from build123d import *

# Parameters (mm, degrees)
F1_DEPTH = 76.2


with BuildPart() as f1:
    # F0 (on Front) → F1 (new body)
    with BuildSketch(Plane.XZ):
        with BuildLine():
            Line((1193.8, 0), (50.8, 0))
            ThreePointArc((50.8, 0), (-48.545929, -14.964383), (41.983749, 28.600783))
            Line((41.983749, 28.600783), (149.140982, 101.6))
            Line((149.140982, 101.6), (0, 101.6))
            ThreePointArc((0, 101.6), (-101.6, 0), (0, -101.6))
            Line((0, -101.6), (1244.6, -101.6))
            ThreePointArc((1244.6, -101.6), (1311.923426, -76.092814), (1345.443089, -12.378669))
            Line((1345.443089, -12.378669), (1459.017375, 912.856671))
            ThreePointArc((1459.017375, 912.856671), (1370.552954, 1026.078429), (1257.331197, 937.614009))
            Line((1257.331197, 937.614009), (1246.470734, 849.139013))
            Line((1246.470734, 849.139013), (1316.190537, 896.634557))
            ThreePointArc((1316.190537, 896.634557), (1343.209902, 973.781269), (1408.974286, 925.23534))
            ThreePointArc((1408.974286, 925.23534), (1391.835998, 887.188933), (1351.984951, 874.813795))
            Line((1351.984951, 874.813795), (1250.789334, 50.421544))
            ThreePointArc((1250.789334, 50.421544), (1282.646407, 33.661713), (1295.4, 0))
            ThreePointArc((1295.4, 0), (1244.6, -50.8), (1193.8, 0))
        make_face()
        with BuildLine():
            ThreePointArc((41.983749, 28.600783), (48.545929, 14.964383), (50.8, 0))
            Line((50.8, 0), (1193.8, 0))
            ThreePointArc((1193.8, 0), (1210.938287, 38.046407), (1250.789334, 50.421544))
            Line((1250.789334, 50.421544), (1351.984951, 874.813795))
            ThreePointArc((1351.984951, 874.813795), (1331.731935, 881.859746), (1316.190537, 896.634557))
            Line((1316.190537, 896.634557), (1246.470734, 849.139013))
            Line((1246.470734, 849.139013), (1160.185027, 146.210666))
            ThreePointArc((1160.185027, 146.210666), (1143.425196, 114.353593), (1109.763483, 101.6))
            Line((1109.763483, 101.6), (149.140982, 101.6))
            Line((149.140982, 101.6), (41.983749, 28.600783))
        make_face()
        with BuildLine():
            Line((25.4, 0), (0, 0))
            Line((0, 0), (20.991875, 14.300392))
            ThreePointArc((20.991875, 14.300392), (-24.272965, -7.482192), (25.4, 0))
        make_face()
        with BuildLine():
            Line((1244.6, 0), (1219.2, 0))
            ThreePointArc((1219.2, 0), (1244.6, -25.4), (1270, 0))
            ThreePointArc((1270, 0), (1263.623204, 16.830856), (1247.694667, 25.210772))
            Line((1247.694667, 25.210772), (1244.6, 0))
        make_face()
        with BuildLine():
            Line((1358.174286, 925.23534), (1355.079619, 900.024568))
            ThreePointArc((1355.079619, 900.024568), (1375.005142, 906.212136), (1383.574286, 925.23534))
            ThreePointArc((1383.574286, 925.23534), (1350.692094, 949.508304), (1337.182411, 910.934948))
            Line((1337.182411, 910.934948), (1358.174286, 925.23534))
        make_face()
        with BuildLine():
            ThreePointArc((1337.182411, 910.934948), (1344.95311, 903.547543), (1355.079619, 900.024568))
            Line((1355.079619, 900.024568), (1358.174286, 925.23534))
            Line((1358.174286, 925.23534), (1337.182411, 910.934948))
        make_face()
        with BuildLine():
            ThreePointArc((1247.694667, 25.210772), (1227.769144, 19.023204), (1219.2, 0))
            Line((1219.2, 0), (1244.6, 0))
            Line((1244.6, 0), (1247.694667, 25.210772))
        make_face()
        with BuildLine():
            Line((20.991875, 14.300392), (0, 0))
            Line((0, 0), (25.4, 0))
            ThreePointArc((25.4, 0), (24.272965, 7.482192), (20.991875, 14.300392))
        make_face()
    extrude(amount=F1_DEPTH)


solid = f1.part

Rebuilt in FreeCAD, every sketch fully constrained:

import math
import FreeCAD as App
import Part
import Sketcher

V = App.Vector
Q = App.Units.Quantity

doc = App.newDocument("Part")
body = doc.addObject("PartDesign::Body", "Body")
body.AllowCompound = True

sketch1 = doc.addObject("Sketcher::SketchObject", "Sketch")
body.addObject(sketch1)
sketch1.AttachmentSupport = (doc.XZ_Plane, [""])
sketch1.MapMode = "FlatFace"
sketch1.addGeometry([
    Part.ArcOfCircle(Part.Circle(V(0, 0, 0), V(0, 0, 1), 101.6), math.radians(90), math.radians(270)),
    Part.LineSegment(V(0, -101.6, 0), V(1244.6, -101.6, 0)),
    Part.ArcOfCircle(Part.Circle(V(1244.6, 0, 0), V(0, 0, 1), 101.6), math.radians(-90), math.radians(-6.99815)),
    Part.LineSegment(V(1345.443089, -12.378669, 0), V(1459.017375, 912.856671, 0)),
    Part.ArcOfCircle(Part.Circle(V(1358.174286, 925.23534, 0), V(0, 0, 1), 101.6), math.radians(-6.99815), math.radians(173.00185)),
    Part.LineSegment(V(1257.331197, 937.614009, 0), V(1246.470734, 849.139013, 0)),
    Part.LineSegment(V(1246.470734, 849.139013, 0), V(1160.185027, 146.210666, 0)),
    Part.ArcOfCircle(Part.Circle(V(1109.763484, 152.399999, 0), V(0, 0, 1), 50.799999), math.radians(-90.000001), math.radians(-6.998148)),
    Part.LineSegment(V(1109.763483, 101.6, 0), V(0, 101.6, 0)),
    Part.ArcOfCircle(Part.Circle(V(0, -0.000001, 0), V(0, 0, 1), 50.8), math.radians(34.264046), math.radians(360.000001)),
    Part.ArcOfCircle(Part.Circle(V(-0.000001, -0.000001, 0), V(0, 0, 1), 50.800001), math.radians(0.000001), math.radians(34.264046)),
    Part.ArcOfCircle(Part.Circle(V(1358.174286, 925.23534, 0), V(0, 0, 1), 50.8), math.radians(0), math.radians(214.264046)),
    Part.ArcOfCircle(Part.Circle(V(1358.174284, 925.235342, 0), V(0, 0, 1), 50.800002), math.radians(-96.998148), math.radians(-0.000002)),
    Part.ArcOfCircle(Part.Circle(V(1358.174283, 925.235333, 0), V(0, 0, 1), 50.799994), math.radians(-145.735959), math.radians(-96.998148)),
    Part.ArcOfCircle(Part.Circle(V(1244.600001, 0.000001, 0), V(0, 0, 1), 50.799999), math.radians(-0.000001), math.radians(83.001852)),
    Part.ArcOfCircle(Part.Circle(V(1244.6, 0, 0), V(0, 0, 1), 50.8), math.radians(180), math.radians(360)),
    Part.ArcOfCircle(Part.Circle(V(1244.599999, 0, 0), V(0, 0, 1), 50.799999), math.radians(83.00185), math.radians(180.000001)),
    Part.ArcOfCircle(Part.Circle(V(0, 0.000001, 0), V(0, 0, 1), 25.4), math.radians(34.264044), math.radians(359.999998)),
    Part.ArcOfCircle(Part.Circle(V(0.000005, 0.000003, 0), V(0, 0, 1), 25.399995), math.radians(-0.000006), math.radians(34.264048)),
    Part.ArcOfCircle(Part.Circle(V(1244.6, 0, 0), V(0, 0, 1), 25.4), math.radians(180), math.radians(360)),
    Part.ArcOfCircle(Part.Circle(V(1244.600001, 0, 0), V(0, 0, 1), 25.399999), math.radians(-0.000001), math.radians(83.001852)),
    Part.ArcOfCircle(Part.Circle(V(1244.6, 0, 0), V(0, 0, 1), 25.4), math.radians(83.001849), math.radians(180.000001)),
    Part.ArcOfCircle(Part.Circle(V(1358.174286, 925.23534, 0), V(0, 0, 1), 25.4), math.radians(-96.998151), math.radians(0.000001)),
    Part.ArcOfCircle(Part.Circle(V(1358.174286, 925.235339, 0), V(0, 0, 1), 25.4), math.radians(0.000001), math.radians(214.264045)),
    Part.ArcOfCircle(Part.Circle(V(1358.174282, 925.235336, 0), V(0, 0, 1), 25.399995), math.radians(-145.735957), math.radians(-96.998142)),
], False)
sketch1.addConstraint([
    Sketcher.Constraint("Coincident", 0, 2, 1, 1),
    Sketcher.Constraint("Coincident", 1, 2, 2, 1),
    Sketcher.Constraint("Coincident", 2, 2, 3, 1),
    Sketcher.Constraint("Coincident", 3, 2, 4, 1),
    Sketcher.Constraint("Coincident", 4, 2, 5, 1),
    Sketcher.Constraint("Coincident", 5, 2, 6, 1),
    Sketcher.Constraint("Coincident", 6, 2, 7, 2),
    Sketcher.Constraint("Coincident", 7, 1, 8, 1),
    Sketcher.Constraint("Coincident", 8, 2, 0, 1),
    Sketcher.Constraint("Coincident", 9, 1, 10, 2),
    Sketcher.Constraint("Coincident", 10, 1, 9, 2),
    Sketcher.Constraint("Coincident", 11, 1, 12, 2),
    Sketcher.Constraint("Coincident", 12, 1, 13, 2),
    Sketcher.Constraint("Coincident", 13, 1, 11, 2),
    Sketcher.Constraint("Coincident", 14, 1, 15, 2),
    Sketcher.Constraint("Coincident", 15, 1, 16, 2),
    Sketcher.Constraint("Coincident", 16, 1, 14, 2),
    Sketcher.Constraint("Coincident", 17, 1, 18, 2),
    Sketcher.Constraint("Coincident", 18, 1, 17, 2),
    Sketcher.Constraint("Coincident", 19, 2, 20, 1),
    Sketcher.Constraint("Coincident", 20, 2, 21, 1),
    Sketcher.Constraint("Coincident", 21, 2, 19, 1),
    Sketcher.Constraint("Coincident", 22, 2, 23, 1),
    Sketcher.Constraint("Coincident", 23, 2, 24, 1),
    Sketcher.Constraint("Coincident", 24, 2, 22, 1),
    Sketcher.Constraint("Horizontal", 1),
    Sketcher.Constraint("Horizontal", 8),
    Sketcher.Constraint("Coincident", 0, 3, -1, 1),
    Sketcher.Constraint("Coincident", 9, 3, -1, 1),
    Sketcher.Constraint("Coincident", 17, 3, -1, 1),
    Sketcher.Constraint("Coincident", 11, 3, 4, 3),
    Sketcher.Constraint("Coincident", 12, 3, 4, 3),
    Sketcher.Constraint("Coincident", 14, 3, 2, 3),
    Sketcher.Constraint("Coincident", 15, 3, 2, 3),
    Sketcher.Constraint("Coincident", 19, 3, 2, 3),
    Sketcher.Constraint("Coincident", 20, 3, 2, 3),
    Sketcher.Constraint("Coincident", 22, 3, 4, 3),
    Sketcher.Constraint("Coincident", 23, 3, 4, 3),
    Sketcher.Constraint("PointOnObject", 2, 3, -1),
    Sketcher.Constraint("PointOnObject", 16, 3, -1),
    Sketcher.Constraint("PointOnObject", 21, 3, -1),
    Sketcher.Constraint("PointOnObject", 0, 2, -2),
    Sketcher.Constraint("PointOnObject", 8, 2, -2),
    Sketcher.Constraint("PointOnObject", 10, 1, -1),
    Sketcher.Constraint("PointOnObject", 14, 1, -1),
    Sketcher.Constraint("PointOnObject", 15, 1, -1),
    Sketcher.Constraint("PointOnObject", 18, 1, -1),
    Sketcher.Constraint("PointOnObject", 19, 2, -1),
    Sketcher.Constraint("PointOnObject", 21, 2, -1),
    Sketcher.Constraint("Radius", 0, Q("4 in")),
    Sketcher.Constraint("Radius", 4, Q("4 in")),
    Sketcher.Constraint("Radius", 7, Q("2 in")),
    Sketcher.Constraint("Radius", 9, Q("2 in")),
    Sketcher.Constraint("Radius", 10, Q("2 in")),
    Sketcher.Constraint("Radius", 11, Q("2 in")),
    Sketcher.Constraint("Radius", 14, Q("2 in")),
    Sketcher.Constraint("Radius", 17, Q("1 in")),
    Sketcher.Constraint("Radius", 19, Q("1 in")),
    Sketcher.Constraint("Radius", 22, Q("1 in")),
    Sketcher.Constraint("Radius", 24, Q("0.9999998 in")),
    Sketcher.Constraint("DistanceX", 1, 1, 1, 2, Q("49 in")),
    Sketcher.Constraint("DistanceX", -1, 1, 2, 3, Q("49 in")),
    Sketcher.Constraint("DistanceY", 18, 3, 7, 3, Q("5.9999999 in")),
    Sketcher.Constraint("Distance", 3, Q("36.7 in")),
    Sketcher.Constraint("DistanceY", -1, 1, 16, 1, Q("1.9851002 in")),
    Sketcher.Constraint("Radius", 13, 50.799994),
    Sketcher.Constraint("DistanceX", 7, 3, 6, 2, Q("1.9851001 in")),
    Sketcher.Constraint("DistanceX", 7, 1, 6, 2, Q("1.9851002 in")),
    Sketcher.Constraint("DistanceY", 12, 1, 13, 3, Q("1.9850999 in")),
    Sketcher.Constraint("DistanceX", 7, 3, 12, 3, 248.4108),
    Sketcher.Constraint("Distance", 6, 708.204409),
    Sketcher.Constraint("DistanceX", 8, 2, 8, 1, 1109.763483),
    Sketcher.Constraint("DistanceY", -1, 1, 4, 3, 925.23534),
    Sketcher.Constraint("DistanceX", -1, 1, 2, 2, 1345.443089),
    Sketcher.Constraint("DistanceY", -1, 1, 4, 2, 937.614009),
    Sketcher.Constraint("DistanceX", -1, 1, 9, 1, 41.983749),
    Sketcher.Constraint("DistanceY", -1, 1, 11, 1, 925.23534),
    Sketcher.Constraint("DistanceY", -1, 1, 17, 1, 14.300392),
    Sketcher.Constraint("DistanceY", -1, 1, 20, 2, 25.210772),
    Sketcher.Constraint("DistanceY", -1, 1, 22, 2, 925.23534),
    Sketcher.Constraint("DistanceX", -1, 1, 23, 2, 1337.182411),
    Sketcher.Constraint("DistanceX", -1, 1, 24, 2, 1355.079619),
    Sketcher.Constraint("DistanceX", 5, 2, 13, 3, 111.703549),
    Sketcher.Constraint("DistanceY", 12, 1, 13, 1, 21.820762),
])
pad1 = doc.addObject("PartDesign::Pad", "Pad")
body.addObject(pad1)
pad1.Profile = sketch1
pad1.Length = Q("3 in")

doc.recompute()
